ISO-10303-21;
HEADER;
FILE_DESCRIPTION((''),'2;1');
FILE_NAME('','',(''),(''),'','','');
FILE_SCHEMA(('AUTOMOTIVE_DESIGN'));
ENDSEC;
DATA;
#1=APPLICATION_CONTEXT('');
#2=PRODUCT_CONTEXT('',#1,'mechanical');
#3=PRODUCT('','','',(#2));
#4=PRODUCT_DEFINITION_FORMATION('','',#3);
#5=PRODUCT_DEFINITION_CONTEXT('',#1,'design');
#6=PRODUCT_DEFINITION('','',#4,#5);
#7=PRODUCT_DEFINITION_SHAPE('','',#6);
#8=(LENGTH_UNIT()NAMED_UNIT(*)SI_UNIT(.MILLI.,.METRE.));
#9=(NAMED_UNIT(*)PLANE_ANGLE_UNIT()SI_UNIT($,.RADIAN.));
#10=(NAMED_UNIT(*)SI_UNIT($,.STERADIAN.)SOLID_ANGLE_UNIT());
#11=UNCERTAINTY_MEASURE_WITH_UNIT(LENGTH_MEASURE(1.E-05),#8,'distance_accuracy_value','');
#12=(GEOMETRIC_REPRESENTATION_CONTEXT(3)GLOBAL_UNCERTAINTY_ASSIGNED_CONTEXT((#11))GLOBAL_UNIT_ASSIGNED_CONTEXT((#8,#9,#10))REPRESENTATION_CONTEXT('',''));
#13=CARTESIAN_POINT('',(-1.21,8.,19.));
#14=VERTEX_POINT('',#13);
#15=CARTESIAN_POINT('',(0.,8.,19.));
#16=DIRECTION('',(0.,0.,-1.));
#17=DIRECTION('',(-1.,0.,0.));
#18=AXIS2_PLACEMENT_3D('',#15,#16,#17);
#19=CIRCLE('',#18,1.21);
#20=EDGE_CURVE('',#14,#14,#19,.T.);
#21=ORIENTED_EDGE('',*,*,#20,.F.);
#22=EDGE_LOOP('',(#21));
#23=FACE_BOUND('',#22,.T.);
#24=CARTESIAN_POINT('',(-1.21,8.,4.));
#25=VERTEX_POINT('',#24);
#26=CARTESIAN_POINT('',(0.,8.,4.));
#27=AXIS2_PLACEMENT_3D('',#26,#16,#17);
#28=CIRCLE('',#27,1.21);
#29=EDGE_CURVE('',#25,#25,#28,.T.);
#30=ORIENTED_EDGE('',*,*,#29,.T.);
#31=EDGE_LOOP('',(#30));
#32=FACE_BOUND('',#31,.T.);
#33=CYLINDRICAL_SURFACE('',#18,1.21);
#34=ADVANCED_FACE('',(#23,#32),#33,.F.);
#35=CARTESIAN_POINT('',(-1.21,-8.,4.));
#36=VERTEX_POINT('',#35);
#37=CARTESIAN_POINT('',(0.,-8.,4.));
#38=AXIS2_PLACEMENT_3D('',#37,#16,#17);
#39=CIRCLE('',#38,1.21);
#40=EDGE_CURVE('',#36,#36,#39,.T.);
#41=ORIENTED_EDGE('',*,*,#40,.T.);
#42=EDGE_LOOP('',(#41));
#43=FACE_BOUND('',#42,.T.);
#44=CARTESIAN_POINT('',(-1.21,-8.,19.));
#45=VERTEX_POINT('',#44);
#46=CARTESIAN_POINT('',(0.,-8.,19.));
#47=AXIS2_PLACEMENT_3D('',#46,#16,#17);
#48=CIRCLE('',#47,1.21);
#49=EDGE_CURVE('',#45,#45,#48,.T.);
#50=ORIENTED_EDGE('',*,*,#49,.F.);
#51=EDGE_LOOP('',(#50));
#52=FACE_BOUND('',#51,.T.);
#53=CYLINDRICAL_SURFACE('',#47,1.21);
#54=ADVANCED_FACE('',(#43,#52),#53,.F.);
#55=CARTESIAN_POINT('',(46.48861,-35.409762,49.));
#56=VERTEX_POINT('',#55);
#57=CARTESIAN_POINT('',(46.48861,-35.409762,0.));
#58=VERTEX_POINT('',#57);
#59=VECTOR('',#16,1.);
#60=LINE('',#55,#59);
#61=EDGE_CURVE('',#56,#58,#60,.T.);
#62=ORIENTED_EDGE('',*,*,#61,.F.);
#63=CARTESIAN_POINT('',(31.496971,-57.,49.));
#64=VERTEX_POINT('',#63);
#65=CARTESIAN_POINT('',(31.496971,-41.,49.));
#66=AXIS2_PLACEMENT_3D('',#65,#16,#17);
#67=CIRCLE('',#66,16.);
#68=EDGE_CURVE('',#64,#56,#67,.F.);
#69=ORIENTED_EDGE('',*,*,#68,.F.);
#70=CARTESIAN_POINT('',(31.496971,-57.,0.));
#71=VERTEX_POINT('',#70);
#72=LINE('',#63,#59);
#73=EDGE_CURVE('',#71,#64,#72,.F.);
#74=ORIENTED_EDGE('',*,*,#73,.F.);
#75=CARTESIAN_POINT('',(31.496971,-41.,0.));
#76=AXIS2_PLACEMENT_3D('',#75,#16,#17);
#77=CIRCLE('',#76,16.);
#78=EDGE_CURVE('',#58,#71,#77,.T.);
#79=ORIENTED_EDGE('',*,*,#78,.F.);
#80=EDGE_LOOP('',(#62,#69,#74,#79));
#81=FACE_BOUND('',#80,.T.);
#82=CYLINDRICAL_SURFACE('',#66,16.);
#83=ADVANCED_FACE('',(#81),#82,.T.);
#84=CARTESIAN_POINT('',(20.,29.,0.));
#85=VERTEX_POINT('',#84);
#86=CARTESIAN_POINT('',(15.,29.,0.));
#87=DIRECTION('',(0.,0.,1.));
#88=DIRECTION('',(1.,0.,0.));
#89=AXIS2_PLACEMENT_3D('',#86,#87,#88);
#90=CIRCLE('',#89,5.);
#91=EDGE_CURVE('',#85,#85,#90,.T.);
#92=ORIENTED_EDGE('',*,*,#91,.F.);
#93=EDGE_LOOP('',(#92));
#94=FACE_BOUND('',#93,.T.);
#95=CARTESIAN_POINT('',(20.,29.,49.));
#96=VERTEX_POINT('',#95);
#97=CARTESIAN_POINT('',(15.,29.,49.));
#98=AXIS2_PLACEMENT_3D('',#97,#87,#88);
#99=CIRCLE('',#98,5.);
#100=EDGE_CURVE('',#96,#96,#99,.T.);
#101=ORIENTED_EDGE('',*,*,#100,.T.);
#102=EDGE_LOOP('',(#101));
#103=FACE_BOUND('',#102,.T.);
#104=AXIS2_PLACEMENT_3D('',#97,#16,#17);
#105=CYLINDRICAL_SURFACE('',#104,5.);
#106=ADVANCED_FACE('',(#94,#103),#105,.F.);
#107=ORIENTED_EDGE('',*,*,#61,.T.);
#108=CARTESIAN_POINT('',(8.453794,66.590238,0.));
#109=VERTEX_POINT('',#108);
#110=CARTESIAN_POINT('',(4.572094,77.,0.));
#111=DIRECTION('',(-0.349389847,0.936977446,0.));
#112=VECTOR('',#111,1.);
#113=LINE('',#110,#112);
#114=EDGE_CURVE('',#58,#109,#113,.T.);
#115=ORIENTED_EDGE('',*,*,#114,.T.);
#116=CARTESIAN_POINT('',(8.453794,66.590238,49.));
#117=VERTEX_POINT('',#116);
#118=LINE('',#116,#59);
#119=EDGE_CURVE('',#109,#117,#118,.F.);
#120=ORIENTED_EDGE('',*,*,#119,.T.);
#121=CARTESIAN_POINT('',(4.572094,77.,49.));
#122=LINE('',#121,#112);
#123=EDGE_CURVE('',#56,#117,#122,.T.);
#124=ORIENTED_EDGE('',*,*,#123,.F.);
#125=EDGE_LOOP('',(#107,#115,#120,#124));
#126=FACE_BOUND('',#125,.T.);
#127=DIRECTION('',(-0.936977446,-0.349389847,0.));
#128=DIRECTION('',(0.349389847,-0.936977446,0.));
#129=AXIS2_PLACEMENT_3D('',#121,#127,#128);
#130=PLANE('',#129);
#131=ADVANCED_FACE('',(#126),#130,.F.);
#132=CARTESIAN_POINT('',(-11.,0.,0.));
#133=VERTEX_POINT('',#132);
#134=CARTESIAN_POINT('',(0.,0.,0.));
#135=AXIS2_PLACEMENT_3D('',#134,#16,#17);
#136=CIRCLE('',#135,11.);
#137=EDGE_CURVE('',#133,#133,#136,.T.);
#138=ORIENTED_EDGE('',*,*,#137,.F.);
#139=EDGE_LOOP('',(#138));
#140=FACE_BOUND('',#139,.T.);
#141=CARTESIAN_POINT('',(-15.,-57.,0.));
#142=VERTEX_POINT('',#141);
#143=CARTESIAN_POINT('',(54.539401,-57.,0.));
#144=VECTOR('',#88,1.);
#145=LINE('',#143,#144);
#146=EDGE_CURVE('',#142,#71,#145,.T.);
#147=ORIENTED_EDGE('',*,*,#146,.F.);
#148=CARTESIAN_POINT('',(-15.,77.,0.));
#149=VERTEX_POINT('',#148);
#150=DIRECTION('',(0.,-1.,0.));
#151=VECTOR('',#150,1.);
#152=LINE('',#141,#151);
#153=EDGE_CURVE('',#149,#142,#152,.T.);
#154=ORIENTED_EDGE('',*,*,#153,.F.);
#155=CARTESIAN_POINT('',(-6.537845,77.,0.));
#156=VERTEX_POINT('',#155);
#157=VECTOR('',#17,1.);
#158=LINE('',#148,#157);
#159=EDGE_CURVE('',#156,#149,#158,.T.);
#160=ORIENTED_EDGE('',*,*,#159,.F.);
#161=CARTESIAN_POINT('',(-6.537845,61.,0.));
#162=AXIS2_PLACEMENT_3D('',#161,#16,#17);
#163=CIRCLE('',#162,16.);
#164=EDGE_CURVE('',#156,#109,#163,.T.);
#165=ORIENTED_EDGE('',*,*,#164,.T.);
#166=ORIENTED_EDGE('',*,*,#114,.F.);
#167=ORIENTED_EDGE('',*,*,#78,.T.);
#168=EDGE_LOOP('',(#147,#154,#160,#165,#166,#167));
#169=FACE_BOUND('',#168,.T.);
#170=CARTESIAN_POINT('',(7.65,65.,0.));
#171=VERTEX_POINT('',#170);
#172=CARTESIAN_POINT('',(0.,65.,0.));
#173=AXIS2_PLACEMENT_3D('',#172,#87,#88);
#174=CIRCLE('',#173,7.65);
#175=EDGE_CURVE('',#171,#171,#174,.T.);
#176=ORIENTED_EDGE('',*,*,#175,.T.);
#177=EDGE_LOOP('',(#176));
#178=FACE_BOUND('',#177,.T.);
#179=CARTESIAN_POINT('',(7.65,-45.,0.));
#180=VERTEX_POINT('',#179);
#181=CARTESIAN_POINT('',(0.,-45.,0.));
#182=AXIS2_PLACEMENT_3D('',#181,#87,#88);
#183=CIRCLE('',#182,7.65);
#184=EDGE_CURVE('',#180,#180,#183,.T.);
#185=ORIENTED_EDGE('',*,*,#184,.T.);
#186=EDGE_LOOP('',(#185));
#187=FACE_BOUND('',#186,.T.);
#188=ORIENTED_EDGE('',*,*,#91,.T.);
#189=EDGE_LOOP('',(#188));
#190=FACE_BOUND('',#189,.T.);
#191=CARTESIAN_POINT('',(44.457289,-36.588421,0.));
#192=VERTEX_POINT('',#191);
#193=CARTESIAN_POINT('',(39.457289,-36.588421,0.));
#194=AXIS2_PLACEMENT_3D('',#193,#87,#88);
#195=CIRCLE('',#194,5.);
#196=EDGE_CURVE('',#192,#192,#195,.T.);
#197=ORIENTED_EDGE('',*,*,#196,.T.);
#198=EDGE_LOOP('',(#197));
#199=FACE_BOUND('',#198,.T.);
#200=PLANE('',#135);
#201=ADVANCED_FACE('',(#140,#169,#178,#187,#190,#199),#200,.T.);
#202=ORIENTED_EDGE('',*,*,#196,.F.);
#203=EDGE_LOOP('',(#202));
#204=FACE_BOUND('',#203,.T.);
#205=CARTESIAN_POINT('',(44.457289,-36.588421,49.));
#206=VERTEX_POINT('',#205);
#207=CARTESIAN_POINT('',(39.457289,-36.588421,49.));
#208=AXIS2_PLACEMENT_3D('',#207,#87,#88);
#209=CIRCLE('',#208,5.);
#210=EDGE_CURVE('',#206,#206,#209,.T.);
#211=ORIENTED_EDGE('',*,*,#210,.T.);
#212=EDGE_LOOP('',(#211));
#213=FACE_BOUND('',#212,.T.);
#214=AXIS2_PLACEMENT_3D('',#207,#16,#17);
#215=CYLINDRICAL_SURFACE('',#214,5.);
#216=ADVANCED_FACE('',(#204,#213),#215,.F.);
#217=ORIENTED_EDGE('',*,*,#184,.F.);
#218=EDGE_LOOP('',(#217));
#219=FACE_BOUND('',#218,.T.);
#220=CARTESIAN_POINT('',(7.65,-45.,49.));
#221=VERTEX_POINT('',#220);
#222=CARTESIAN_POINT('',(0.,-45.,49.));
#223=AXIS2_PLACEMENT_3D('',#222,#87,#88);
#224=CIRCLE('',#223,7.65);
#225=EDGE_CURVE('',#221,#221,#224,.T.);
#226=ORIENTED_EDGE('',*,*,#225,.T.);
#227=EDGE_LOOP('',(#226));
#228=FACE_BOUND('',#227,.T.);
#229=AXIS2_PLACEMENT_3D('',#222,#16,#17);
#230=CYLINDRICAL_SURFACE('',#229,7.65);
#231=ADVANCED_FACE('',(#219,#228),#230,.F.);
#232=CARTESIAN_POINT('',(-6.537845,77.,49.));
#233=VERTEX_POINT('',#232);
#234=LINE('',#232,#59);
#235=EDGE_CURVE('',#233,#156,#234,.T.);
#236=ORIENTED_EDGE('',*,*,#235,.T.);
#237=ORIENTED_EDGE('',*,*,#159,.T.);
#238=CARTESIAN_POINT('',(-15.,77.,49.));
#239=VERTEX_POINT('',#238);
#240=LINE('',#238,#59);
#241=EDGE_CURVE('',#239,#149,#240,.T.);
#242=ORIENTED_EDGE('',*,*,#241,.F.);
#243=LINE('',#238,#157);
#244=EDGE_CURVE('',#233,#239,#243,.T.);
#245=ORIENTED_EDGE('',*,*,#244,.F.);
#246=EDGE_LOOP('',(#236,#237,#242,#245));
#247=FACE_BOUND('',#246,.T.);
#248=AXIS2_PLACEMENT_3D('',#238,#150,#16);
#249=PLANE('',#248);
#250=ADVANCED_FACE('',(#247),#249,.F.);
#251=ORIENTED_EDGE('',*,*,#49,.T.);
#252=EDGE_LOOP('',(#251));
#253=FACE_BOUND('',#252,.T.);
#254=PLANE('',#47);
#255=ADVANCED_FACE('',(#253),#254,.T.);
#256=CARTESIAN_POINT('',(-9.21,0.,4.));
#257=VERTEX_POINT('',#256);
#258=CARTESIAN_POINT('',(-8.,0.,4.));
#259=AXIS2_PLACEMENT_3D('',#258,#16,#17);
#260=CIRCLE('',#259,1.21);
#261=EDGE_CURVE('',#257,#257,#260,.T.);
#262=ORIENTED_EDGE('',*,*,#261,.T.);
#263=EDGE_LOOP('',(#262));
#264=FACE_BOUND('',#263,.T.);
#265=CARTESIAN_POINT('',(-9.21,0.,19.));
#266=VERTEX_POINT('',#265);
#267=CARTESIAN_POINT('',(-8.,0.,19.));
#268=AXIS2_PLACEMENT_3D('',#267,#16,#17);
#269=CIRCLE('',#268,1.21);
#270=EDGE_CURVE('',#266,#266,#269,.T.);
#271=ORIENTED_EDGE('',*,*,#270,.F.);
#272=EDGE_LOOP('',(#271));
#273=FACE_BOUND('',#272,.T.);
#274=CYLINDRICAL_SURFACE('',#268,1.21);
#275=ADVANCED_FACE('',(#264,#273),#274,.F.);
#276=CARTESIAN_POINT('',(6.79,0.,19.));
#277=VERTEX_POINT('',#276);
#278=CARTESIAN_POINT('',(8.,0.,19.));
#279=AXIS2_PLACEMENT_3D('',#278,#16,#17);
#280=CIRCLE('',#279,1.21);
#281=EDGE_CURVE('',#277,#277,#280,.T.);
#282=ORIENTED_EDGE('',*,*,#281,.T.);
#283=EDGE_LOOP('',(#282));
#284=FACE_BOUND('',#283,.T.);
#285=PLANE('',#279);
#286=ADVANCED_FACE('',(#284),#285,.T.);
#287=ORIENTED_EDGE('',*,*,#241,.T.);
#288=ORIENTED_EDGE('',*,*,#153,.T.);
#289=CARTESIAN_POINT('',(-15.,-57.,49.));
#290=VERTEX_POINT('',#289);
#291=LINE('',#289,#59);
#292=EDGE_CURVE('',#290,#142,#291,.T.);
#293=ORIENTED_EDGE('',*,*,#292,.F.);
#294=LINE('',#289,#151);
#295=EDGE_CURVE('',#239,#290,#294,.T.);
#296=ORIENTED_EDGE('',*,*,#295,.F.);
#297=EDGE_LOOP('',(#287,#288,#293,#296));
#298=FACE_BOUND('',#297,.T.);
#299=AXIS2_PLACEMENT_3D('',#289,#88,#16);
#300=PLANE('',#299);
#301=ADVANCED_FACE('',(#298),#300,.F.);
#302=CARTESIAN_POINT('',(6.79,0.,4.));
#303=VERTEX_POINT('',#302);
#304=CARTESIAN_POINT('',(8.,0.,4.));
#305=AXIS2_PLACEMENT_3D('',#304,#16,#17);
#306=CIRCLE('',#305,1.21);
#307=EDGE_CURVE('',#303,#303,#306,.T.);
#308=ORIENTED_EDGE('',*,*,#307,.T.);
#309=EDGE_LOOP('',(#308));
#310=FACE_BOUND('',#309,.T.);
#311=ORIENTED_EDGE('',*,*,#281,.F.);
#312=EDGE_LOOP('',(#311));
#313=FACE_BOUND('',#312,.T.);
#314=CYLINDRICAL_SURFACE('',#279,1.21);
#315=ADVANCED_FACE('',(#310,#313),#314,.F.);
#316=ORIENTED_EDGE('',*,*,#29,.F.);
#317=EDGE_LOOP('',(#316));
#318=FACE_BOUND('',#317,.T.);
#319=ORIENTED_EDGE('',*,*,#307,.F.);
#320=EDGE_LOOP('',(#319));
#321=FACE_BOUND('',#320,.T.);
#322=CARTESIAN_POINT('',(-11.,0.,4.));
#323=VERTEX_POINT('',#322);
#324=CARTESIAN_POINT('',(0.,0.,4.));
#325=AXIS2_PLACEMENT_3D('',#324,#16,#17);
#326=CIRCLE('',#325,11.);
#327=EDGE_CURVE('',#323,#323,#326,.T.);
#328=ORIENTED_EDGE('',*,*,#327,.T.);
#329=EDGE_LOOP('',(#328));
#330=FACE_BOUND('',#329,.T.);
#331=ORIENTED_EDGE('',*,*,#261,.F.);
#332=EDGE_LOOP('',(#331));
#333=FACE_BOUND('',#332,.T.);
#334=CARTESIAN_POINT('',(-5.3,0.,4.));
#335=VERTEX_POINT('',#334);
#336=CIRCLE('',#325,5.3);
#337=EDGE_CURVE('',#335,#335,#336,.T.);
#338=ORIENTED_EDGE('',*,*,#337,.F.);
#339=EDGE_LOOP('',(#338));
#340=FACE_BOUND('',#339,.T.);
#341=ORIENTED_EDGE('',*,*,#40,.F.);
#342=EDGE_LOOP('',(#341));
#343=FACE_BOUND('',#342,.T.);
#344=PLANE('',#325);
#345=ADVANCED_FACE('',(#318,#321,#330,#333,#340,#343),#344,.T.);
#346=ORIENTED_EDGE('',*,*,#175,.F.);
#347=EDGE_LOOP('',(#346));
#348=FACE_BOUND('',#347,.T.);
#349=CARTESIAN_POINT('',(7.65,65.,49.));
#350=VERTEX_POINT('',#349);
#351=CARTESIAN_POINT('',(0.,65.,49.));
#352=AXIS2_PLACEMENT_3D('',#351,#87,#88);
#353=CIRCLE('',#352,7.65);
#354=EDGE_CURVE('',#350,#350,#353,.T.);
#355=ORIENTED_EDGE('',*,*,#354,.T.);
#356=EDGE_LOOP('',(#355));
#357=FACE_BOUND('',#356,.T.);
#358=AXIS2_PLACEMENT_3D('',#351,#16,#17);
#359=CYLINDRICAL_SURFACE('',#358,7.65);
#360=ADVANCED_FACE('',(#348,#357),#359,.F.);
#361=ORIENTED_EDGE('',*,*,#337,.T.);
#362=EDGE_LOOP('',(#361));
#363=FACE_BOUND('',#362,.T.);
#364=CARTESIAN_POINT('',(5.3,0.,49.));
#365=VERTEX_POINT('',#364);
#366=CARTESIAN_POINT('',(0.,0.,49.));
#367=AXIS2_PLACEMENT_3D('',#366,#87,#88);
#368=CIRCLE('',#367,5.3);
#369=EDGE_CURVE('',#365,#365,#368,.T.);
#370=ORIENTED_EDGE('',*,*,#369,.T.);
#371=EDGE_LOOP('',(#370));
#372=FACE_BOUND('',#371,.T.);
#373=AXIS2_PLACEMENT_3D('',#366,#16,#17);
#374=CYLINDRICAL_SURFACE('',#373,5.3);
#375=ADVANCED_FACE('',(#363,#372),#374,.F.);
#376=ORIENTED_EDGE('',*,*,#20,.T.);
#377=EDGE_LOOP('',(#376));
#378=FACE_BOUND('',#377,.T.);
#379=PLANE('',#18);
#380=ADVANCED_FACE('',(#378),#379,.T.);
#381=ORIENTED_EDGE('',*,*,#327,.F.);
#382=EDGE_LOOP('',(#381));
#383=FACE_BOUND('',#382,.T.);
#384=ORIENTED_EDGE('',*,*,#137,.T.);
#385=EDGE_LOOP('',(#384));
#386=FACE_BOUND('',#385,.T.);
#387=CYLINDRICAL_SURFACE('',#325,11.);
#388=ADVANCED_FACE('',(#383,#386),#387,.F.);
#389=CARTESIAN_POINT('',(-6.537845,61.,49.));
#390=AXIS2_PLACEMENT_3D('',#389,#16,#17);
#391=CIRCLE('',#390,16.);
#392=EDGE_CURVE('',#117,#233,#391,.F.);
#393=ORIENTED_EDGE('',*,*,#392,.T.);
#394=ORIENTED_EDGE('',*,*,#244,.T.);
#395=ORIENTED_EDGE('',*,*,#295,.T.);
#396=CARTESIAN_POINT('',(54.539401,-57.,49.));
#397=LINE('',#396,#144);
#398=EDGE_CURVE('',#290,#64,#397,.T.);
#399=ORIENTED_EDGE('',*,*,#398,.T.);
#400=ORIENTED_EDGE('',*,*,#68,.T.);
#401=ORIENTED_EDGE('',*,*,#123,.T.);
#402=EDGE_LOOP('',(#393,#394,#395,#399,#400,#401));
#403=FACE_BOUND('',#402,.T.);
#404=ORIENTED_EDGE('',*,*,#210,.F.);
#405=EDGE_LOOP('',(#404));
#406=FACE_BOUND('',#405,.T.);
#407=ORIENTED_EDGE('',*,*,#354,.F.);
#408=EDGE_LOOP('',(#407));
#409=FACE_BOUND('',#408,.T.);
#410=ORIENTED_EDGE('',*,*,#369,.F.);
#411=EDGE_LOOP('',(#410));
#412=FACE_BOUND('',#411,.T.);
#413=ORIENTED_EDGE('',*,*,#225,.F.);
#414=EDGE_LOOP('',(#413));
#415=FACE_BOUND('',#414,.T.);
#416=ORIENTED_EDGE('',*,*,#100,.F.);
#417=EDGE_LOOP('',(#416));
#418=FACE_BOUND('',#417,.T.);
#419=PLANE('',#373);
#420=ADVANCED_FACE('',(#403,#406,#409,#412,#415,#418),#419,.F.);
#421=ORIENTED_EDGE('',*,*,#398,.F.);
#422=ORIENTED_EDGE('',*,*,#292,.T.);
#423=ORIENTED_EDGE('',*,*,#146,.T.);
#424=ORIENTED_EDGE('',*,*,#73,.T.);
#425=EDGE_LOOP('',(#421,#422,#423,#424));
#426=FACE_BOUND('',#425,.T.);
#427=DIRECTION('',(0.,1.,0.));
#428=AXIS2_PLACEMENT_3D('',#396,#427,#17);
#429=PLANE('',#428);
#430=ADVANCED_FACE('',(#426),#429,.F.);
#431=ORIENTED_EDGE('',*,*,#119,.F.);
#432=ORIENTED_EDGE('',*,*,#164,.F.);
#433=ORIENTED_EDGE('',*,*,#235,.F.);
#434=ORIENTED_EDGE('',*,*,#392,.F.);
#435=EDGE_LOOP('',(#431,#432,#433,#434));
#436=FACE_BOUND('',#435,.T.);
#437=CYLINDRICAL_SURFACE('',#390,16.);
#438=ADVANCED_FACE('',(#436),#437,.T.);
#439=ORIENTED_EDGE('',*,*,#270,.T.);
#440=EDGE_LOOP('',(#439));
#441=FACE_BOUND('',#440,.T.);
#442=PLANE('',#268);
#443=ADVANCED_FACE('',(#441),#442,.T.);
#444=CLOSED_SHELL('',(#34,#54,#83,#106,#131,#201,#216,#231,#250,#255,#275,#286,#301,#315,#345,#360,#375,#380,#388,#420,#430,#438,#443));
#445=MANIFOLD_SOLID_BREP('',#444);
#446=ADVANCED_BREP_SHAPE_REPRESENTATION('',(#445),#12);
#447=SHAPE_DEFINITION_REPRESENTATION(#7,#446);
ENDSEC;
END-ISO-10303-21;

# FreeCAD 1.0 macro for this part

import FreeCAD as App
import Part
import Sketcher
from FreeCAD import Vector
Q = App.Units.Quantity


def edges_at(feature, points):
    """Names of the edges that pass closest to the given points."""
    edges = feature.Shape.Edges
    near = lambda p: min(range(len(edges)), key=lambda i: edges[i].distToShape(Part.Vertex(*p))[0])
    return sorted({f"Edge{near(p) + 1}" for p in points})

doc = App.newDocument("Part")
body = doc.addObject("PartDesign::Body", "Body")

# Sketch on XY plane
sketch1 = body.newObject("Sketcher::SketchObject", "Sketch")
sketch1.AttachmentSupport = (doc.getObject("XY_Plane"), [""])
sketch1.MapMode = "FlatFace"
sketch1.addGeometry([
    Part.LineSegment(Vector(-15, 77, 0), Vector(-15, -57, 0)),  # 0
    Part.LineSegment(Vector(-15, -57, 0), Vector(54.539401, -57, 0)),  # 1
    Part.LineSegment(Vector(54.539401, -57, 0), Vector(4.572094, 77, 0)),  # 2
    Part.LineSegment(Vector(4.572094, 77, 0), Vector(-15, 77, 0)),  # 3
    Part.Circle(Vector(39.457289, -36.588421, 0), Vector(0, 0, 1), 5),  # 4
    Part.Circle(Vector(0, -45, 0), Vector(0, 0, 1), 7.65),  # 5
    Part.Circle(Vector(0, 0, 0), Vector(0, 0, 1), 5.3),  # 6
    Part.Circle(Vector(15, 29, 0), Vector(0, 0, 1), 5),  # 7
    Part.Circle(Vector(0, 65, 0), Vector(0, 0, 1), 7.65),  # 8
], False)
sketch1.addConstraint([
    Sketcher.Constraint("Coincident", 0, 2, 1, 1),
    Sketcher.Constraint("Coincident", 1, 2, 2, 1),
    Sketcher.Constraint("Coincident", 2, 2, 3, 1),
    Sketcher.Constraint("Coincident", 3, 2, 0, 1),
    Sketcher.Constraint("Vertical", 0),
    Sketcher.Constraint("Horizontal", 1),
    Sketcher.Constraint("Horizontal", 3),
    Sketcher.Constraint("Coincident", 6, 3, -1, 1),
    Sketcher.Constraint("Equal", 4, 7),
    Sketcher.Constraint("Equal", 5, 8),
    Sketcher.Constraint("PointOnObject", 5, 3, -2),
    Sketcher.Constraint("PointOnObject", 8, 3, -2),
    Sketcher.Constraint("Diameter", 4, Q("10 mm")),
    Sketcher.Constraint("Diameter", 5, Q("15.3 mm")),
    Sketcher.Constraint("Diameter", 6, Q("10.6 mm")),
    Sketcher.Constraint("DistanceY", 0, 2, 0, 1, Q("134 mm")),
    Sketcher.Constraint("DistanceY", 5, 3, -1, 1, Q("45 mm")),
    Sketcher.Constraint("DistanceX", -1, 1, 7, 3, Q("15 mm")),
    Sketcher.Constraint("DistanceY", -1, 1, 7, 3, Q("29 mm")),
    Sketcher.Constraint("DistanceY", -1, 1, 8, 3, Q("65 mm")),
    Sketcher.Constraint("DistanceX", 0, 2, -1, 1, Q("15 mm")),
    Sketcher.Constraint("DistanceY", 0, 2, -1, 1, Q("57 mm")),
    Sketcher.Constraint("Angle", 2, Q("110.45 deg")),
    Sketcher.Constraint("DistanceX", 1, 1, 1, 2, Q("69.539401 mm")),
    Sketcher.Constraint("DistanceX", -1, 1, 4, 3, Q("39.457289 mm")),
    Sketcher.Constraint("DistanceY", 4, 3, -1, 1, Q("36.588421 mm")),
])
pad1 = body.newObject("PartDesign::Pad", "Pad")
pad1.Profile = sketch1
pad1.Length = 49
doc.recompute()

fillet = body.newObject("PartDesign::Fillet", "Fillet")
fillet.Base = (pad1, edges_at(pad1, [(4.572, 77, 24.5), (54.539, -57, 24.5)]))
fillet.Radius = 16

# Sketch on XY plane
sketch2 = body.newObject("Sketcher::SketchObject", "Sketch001")
sketch2.AttachmentSupport = (doc.getObject("XY_Plane"), [""])
sketch2.MapMode = "FlatFace"
sketch2.addGeometry(Part.Circle(Vector(0, 0, 0), Vector(0, 0, 1), 11), False)
sketch2.addConstraint([
    Sketcher.Constraint("Coincident", 0, 3, -1, 1),
    Sketcher.Constraint("Diameter", 0, Q("22 mm")),
])
pocket1 = body.newObject("PartDesign::Pocket", "Pocket")
pocket1.Profile = sketch2
pocket1.Length = 4
pocket1.Reversed = True

# Sketch on XY plane
sketch3 = body.newObject("Sketcher::SketchObject", "Sketch002")
sketch3.AttachmentSupport = (doc.getObject("XY_Plane"), [""])
sketch3.MapMode = "FlatFace"
sketch3.AttachmentOffset = App.Placement(Vector(0, 0, 4), App.Rotation())
sketch3.addGeometry([
    Part.Circle(Vector(0, 8, 0), Vector(0, 0, 1), 1.21),
    Part.Circle(Vector(-8, 0, 0), Vector(0, 0, 1), 1.21),
    Part.Circle(Vector(0, -8, 0), Vector(0, 0, 1), 1.21),
    Part.Circle(Vector(8, 0, 0), Vector(0, 0, 1), 1.21),
], False)
sketch3.addConstraint([
    Sketcher.Constraint("Equal", 0, 1),
    Sketcher.Constraint("Equal", 1, 2),
    Sketcher.Constraint("Equal", 2, 3),
    Sketcher.Constraint("Symmetric", 0, 3, 2, 3, -1, 1),
    Sketcher.Constraint("Symmetric", 1, 3, 3, 3, -1, 1),
    Sketcher.Constraint("PointOnObject", 0, 3, -2),
    Sketcher.Constraint("PointOnObject", 1, 3, -1),
    Sketcher.Constraint("Diameter", 0, Q("2.42 mm")),
    Sketcher.Constraint("DistanceY", -1, 1, 0, 3, Q("8 mm")),
    Sketcher.Constraint("DistanceX", 1, 3, -1, 1, Q("8 mm")),
])
pocket2 = body.newObject("PartDesign::Pocket", "Pocket001")
pocket2.Profile = sketch3
pocket2.Length = 15
pocket2.Reversed = True

doc.recompute()
